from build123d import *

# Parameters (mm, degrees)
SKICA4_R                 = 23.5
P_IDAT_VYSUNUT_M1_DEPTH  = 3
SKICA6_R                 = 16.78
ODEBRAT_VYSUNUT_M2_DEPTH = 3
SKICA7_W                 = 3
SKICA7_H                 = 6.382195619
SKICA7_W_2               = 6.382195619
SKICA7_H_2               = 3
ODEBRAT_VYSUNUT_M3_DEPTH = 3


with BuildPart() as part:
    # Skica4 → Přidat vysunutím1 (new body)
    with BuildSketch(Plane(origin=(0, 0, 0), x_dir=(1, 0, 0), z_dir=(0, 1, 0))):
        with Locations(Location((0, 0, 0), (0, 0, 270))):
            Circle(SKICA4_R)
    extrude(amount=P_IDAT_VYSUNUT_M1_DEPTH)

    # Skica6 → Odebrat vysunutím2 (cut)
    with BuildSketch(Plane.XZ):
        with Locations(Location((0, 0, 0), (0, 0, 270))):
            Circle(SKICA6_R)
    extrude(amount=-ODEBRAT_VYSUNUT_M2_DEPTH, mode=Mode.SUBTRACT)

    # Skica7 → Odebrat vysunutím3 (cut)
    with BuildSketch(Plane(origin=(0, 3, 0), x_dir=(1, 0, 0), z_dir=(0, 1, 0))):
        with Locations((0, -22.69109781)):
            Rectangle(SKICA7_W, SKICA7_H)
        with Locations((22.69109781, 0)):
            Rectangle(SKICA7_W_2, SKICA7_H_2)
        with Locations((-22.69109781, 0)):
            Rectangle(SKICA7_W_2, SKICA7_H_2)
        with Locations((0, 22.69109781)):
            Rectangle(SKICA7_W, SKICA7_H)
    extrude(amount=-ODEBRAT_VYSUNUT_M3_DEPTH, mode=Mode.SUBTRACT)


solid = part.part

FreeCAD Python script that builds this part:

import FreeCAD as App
import Part
import Sketcher

V = App.Vector


def add_polygon(sketch, points):
    """Adds a closed chain of lines whose ends are joined by coincident constraints."""
    first, n = sketch.GeometryCount, len(points)
    for a, b in zip(points, points[1:] + points[:1]):
        sketch.addGeometry(Part.LineSegment(App.Vector(*a, 0), App.Vector(*b, 0)), False)
    for i in range(n):
        sketch.addConstraint(Sketcher.Constraint("Coincident", first + i, 2, first + (i + 1) % n, 1))

doc = App.newDocument("Part")
body = doc.addObject("PartDesign::Body", "Body")

# Sketch on XZ plane
sketch1 = body.newObject("Sketcher::SketchObject", "Sketch")
sketch1.AttachmentSupport = (doc.getObject("XZ_Plane"), [""])
sketch1.MapMode = "FlatFace"
sketch1.addGeometry(Part.Circle(V(0, 0, 0), V(0, 0, 1), 24), False)
sketch1.addConstraint([
    Sketcher.Constraint("Coincident", 0, 3, -1, 1),
    Sketcher.Constraint("Diameter", 0, 47.0),
])
pad1 = body.newObject("PartDesign::Pad", "Pad")
pad1.Profile = sketch1
pad1.Length = 3
pad1.Reversed = True

# Sketch on XZ plane
sketch2 = body.newObject("Sketcher::SketchObject", "Sketch001")
sketch2.AttachmentSupport = (doc.getObject("XZ_Plane"), [""])
sketch2.MapMode = "FlatFace"
sketch2.addGeometry(Part.Circle(V(0, 0, 0), V(0, 0, 1), 17), False)
sketch2.addConstraint([
    Sketcher.Constraint("Coincident", 0, 3, -1, 1),
    Sketcher.Constraint("Diameter", 0, 33.56),
])
pocket1 = body.newObject("PartDesign::Pocket", "Pocket")
pocket1.Profile = sketch2
pocket1.Length = 3

# Sketch on XZ plane
sketch3 = body.newObject("Sketcher::SketchObject", "Sketch002")
sketch3.AttachmentSupport = (doc.getObject("XZ_Plane"), [""])
sketch3.MapMode = "FlatFace"
sketch3.AttachmentOffset = App.Placement(V(0, 0, -3), App.Rotation())
add_polygon(sketch3, [(-1.5, 19.5), (-1.5, 25.9), (1.5, 25.9), (1.5, 19.5)])  # lines 0-3
add_polygon(sketch3, [(19.5, -1.5), (19.5, 1.5), (25.9, 1.5), (25.9, -1.5)])  # lines 4-7
add_polygon(sketch3, [(-25.9, -1.5), (-25.9, 1.5), (-19.5, 1.5), (-19.5, -1.5)])  # lines 8-11
add_polygon(sketch3, [(-1.5, -25.9), (-1.5, -19.5), (1.5, -19.5), (1.5, -25.9)])  # lines 12-15
sketch3.addConstraint([
    Sketcher.Constraint("Vertical", 0),
    Sketcher.Constraint("Horizontal", 1),
    Sketcher.Constraint("Vertical", 2),
    Sketcher.Constraint("Horizontal", 3),
    Sketcher.Constraint("Vertical", 4),
    Sketcher.Constraint("Horizontal", 5),
    Sketcher.Constraint("Vertical", 6),
    Sketcher.Constraint("Horizontal", 7),
    Sketcher.Constraint("Vertical", 8),
    Sketcher.Constraint("Horizontal", 9),
    Sketcher.Constraint("Vertical", 10),
    Sketcher.Constraint("Horizontal", 11),
    Sketcher.Constraint("Vertical", 12),
    Sketcher.Constraint("Horizontal", 13),
    Sketcher.Constraint("Vertical", 14),
    Sketcher.Constraint("Horizontal", 15),
    Sketcher.Constraint("Symmetric", 6, 2, 8, 2, -1, 1),
    Sketcher.Constraint("Symmetric", 4, 2, 10, 2, -1, 1),
    Sketcher.Constraint("Symmetric", 2, 2, 12, 2, -1, 1),
    Sketcher.Constraint("Symmetric", 0, 2, 14, 2, -1, 1),
    Sketcher.Constraint("Horizontal", 5, 2, 8, 2),
    Sketcher.Constraint("Vertical", 3, 2, 12, 2),
    Sketcher.Constraint("Equal", 11, 0),
    Sketcher.Constraint("Equal", 15, 4),
    Sketcher.Constraint("DistanceX", 1, 1, 1, 2, 3.0),
    Sketcher.Constraint("DistanceX", 2, 2, 4, 2, 18.0),
    Sketcher.Constraint("DistanceY", 4, 2, 2, 2, 18.0),
    Sketcher.Constraint("DistanceX", 5, 1, 5, 2, 6.382196),
])
pocket2 = body.newObject("PartDesign::Pocket", "Pocket001")
pocket2.Profile = sketch3
pocket2.Length = 3
pocket2.Reversed = True

doc.recompute()
